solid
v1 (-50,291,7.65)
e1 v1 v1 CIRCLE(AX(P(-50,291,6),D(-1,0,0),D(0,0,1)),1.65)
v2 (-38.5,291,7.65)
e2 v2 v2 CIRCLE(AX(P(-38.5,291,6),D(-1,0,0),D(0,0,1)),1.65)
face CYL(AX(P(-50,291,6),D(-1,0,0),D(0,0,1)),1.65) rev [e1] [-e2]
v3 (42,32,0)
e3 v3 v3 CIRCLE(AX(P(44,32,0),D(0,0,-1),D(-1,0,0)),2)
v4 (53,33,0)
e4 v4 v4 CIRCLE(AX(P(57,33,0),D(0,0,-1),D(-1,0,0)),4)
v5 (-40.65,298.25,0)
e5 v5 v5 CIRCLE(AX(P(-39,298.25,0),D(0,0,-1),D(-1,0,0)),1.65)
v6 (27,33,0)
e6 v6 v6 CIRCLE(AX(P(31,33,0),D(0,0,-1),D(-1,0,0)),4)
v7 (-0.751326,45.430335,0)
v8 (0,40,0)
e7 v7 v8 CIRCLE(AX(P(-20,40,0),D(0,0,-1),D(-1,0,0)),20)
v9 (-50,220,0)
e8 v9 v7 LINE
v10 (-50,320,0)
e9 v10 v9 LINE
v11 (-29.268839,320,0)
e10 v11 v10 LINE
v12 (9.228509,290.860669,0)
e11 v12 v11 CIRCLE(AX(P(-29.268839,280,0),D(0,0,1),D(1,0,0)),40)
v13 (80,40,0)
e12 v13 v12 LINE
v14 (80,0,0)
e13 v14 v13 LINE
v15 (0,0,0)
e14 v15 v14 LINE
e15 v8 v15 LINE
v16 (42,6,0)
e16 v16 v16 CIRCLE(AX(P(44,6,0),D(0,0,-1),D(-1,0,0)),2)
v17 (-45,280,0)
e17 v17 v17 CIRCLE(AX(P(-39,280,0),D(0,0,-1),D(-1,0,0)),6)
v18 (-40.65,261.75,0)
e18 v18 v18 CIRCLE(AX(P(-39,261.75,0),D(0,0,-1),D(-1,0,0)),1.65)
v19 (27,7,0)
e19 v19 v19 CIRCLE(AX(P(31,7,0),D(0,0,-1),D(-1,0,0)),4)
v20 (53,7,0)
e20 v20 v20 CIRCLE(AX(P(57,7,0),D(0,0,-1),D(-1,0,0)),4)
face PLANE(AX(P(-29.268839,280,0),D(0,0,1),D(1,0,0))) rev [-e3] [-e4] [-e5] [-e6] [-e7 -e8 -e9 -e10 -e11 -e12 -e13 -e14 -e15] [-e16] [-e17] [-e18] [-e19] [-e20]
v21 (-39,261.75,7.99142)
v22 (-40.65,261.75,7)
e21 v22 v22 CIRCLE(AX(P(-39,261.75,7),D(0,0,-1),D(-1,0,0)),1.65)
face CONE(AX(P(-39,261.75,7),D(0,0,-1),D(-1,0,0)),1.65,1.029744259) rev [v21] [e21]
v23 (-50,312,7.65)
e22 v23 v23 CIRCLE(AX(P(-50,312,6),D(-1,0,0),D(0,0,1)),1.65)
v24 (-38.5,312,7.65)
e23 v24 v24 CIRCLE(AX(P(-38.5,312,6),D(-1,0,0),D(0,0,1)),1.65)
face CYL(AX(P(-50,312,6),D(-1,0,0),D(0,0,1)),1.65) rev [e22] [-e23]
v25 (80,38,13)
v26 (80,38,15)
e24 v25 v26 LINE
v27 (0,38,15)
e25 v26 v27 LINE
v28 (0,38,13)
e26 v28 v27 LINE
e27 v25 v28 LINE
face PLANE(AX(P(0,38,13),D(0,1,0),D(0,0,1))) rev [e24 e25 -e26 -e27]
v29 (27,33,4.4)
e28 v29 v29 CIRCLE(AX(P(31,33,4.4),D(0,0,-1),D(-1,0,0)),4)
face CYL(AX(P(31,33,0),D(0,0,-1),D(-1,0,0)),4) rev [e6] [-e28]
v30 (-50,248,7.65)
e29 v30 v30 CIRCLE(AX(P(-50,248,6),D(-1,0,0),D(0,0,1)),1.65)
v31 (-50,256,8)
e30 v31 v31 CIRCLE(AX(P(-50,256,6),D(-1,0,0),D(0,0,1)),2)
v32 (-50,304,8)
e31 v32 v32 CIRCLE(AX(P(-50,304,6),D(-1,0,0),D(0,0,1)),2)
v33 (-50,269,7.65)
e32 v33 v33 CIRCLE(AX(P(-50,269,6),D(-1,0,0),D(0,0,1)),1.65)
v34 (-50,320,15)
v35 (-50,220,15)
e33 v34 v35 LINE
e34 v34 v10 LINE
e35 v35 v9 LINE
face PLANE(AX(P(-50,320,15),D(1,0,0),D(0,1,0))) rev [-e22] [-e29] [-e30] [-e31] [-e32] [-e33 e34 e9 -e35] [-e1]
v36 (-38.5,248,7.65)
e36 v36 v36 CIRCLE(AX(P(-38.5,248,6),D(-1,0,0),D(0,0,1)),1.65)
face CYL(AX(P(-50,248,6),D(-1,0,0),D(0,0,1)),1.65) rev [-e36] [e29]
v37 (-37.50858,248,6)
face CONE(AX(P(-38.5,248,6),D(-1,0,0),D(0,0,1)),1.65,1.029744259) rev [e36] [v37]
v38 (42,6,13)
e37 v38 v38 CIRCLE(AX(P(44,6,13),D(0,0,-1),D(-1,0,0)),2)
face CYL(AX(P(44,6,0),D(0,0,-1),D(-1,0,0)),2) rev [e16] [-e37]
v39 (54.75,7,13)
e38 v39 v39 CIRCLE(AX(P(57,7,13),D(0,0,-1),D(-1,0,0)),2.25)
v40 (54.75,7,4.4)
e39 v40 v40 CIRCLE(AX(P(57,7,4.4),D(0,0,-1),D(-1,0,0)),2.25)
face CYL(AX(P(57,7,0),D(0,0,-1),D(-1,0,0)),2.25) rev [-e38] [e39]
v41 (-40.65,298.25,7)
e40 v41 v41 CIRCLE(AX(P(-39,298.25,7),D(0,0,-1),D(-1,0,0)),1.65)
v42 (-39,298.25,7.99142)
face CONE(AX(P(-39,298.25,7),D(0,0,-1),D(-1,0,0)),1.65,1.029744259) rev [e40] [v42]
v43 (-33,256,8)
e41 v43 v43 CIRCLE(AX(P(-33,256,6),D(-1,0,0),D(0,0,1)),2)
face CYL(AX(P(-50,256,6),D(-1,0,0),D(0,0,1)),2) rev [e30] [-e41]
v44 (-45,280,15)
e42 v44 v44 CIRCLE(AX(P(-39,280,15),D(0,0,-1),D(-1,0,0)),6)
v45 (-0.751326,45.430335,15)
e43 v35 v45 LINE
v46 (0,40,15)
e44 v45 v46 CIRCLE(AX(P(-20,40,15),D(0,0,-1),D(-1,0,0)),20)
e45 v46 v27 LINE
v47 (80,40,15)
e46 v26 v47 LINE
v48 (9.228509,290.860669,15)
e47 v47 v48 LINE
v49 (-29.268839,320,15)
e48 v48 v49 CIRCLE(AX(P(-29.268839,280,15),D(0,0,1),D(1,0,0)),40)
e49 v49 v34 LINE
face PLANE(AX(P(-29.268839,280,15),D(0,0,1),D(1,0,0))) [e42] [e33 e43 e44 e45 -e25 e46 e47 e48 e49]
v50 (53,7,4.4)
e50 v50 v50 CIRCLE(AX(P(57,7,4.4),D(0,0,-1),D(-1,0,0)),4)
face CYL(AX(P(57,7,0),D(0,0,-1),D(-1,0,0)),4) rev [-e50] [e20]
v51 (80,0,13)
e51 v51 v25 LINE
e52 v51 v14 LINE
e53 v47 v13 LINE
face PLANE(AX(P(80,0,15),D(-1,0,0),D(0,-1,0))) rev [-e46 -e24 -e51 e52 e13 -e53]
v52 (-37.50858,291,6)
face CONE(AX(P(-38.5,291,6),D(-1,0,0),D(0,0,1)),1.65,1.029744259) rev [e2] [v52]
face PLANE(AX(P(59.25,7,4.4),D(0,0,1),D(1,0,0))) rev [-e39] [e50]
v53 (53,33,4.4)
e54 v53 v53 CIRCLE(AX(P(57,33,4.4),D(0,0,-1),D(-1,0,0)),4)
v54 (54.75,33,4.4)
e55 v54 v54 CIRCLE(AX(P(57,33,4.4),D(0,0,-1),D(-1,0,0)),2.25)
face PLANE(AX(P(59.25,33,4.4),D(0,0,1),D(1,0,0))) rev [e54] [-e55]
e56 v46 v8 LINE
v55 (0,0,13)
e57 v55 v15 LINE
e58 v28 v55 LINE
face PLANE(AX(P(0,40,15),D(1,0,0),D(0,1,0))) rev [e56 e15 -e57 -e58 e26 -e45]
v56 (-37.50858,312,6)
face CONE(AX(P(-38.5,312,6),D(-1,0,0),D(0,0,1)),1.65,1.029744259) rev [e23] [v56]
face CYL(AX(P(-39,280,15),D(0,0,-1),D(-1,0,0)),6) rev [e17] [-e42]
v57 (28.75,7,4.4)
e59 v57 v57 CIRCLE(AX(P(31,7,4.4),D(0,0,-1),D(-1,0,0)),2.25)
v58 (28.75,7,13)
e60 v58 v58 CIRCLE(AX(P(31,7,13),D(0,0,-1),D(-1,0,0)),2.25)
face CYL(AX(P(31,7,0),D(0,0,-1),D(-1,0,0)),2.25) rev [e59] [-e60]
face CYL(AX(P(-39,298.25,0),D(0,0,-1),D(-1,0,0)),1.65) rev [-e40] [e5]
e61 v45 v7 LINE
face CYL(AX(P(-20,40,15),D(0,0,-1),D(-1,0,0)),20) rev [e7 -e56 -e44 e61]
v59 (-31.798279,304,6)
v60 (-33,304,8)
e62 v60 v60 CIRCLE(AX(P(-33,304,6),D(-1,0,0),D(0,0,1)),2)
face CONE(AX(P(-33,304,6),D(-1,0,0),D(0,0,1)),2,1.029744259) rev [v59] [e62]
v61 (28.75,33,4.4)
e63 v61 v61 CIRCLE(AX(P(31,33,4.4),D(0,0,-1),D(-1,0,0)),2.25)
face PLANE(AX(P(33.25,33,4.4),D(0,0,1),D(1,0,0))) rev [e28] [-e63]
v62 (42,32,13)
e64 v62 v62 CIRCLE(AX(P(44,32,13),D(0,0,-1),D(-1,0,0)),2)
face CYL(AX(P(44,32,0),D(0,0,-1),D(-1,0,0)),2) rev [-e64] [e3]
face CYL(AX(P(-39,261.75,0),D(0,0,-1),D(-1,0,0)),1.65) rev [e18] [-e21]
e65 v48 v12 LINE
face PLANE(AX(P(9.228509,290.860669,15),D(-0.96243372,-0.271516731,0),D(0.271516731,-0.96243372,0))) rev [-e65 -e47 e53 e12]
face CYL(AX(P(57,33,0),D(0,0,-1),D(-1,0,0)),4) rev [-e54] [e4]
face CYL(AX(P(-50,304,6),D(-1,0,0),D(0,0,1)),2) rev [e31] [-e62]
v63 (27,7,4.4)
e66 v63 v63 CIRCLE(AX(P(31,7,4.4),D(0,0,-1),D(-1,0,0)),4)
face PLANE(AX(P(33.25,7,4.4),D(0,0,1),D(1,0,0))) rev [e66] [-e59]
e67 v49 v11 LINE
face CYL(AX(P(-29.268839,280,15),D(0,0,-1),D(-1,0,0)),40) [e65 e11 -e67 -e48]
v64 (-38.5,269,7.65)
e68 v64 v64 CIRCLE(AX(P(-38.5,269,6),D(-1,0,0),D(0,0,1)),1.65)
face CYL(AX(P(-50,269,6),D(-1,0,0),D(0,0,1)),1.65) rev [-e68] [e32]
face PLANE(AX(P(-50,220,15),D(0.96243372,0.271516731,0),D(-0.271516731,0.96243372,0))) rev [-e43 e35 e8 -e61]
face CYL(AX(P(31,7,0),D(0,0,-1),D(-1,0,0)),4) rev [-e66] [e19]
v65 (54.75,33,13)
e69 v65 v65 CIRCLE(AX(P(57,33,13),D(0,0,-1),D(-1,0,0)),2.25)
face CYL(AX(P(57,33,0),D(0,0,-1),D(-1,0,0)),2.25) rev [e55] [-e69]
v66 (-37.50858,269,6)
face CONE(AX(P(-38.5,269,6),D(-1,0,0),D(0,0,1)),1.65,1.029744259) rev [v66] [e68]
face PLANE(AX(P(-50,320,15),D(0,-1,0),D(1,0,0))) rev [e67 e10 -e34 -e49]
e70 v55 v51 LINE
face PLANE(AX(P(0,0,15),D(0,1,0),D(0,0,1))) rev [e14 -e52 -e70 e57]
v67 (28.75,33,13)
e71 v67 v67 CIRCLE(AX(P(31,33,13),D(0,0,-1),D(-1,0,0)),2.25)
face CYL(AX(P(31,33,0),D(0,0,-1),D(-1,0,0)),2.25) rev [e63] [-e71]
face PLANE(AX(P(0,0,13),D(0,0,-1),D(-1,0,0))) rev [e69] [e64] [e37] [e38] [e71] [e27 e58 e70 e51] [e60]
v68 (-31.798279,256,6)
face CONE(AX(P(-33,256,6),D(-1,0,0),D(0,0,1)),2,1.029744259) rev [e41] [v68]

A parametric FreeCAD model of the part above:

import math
import FreeCAD as App
import Part
import Sketcher

V = App.Vector

doc = App.newDocument("Part")
body = doc.addObject("PartDesign::Body", "Body")

sketch1 = body.newObject("Sketcher::SketchObject", "Sketch")
sketch1.AttachmentSupport = (doc.getObject("XY_Plane"), [""])
sketch1.MapMode = "FlatFace"
sketch1.addGeometry([
    Part.LineSegment(V(80, 0, 0), V(80, 40, 0)),
    Part.LineSegment(V(80, 40, 0), V(9.228509, 290.860669, 0)),
    Part.ArcOfCircle(Part.Circle(V(-29.268839, 280, 0), V(0, 0, 1), 40), math.radians(15.754541), math.radians(90)),
    Part.LineSegment(V(-29.268839, 320, 0), V(-50, 320, 0)),
    Part.LineSegment(V(-50, 320, 0), V(-50, 220, 0)),
    Part.LineSegment(V(-50, 220, 0), V(-0.751326, 45.430335, 0)),
    Part.ArcOfCircle(Part.Circle(V(-20, 40, 0), V(0, 0, 1), 20), math.radians(0), math.radians(15.754541)),
    Part.LineSegment(V(0, 40, 0), V(0, 0, 0)),
    Part.LineSegment(V(0, 0, 0), V(80, 0, 0)),
], False)
sketch1.addConstraint([
    Sketcher.Constraint("Coincident", 0, 2, 1, 1),
    Sketcher.Constraint("Tangent", 1, 2, 2, 1),
    Sketcher.Constraint("Tangent", 2, 2, 3, 1),
    Sketcher.Constraint("Coincident", 3, 2, 4, 1),
    Sketcher.Constraint("Coincident", 4, 2, 5, 1),
    Sketcher.Constraint("Tangent", 5, 2, 6, 2),
    Sketcher.Constraint("Tangent", 6, 1, 7, 1),
    Sketcher.Constraint("Coincident", 7, 2, 8, 1),
    Sketcher.Constraint("Coincident", 8, 2, 0, 1),
    Sketcher.Constraint("Vertical", 0),
    Sketcher.Constraint("Horizontal", 3),
    Sketcher.Constraint("Vertical", 4),
    Sketcher.Constraint("Vertical", 7),
    Sketcher.Constraint("Horizontal", 8),
    Sketcher.Constraint("Coincident", 7, 2, -1, 1),
    Sketcher.Constraint("Parallel", 1, 5),
    Sketcher.Constraint("Horizontal", 6, 3, 0, 2),
    Sketcher.Constraint("Radius", 2, 40.0),
    Sketcher.Constraint("Radius", 6, 20.0),
    Sketcher.Constraint("DistanceX", 8, 1, 8, 2, 80.0),
    Sketcher.Constraint("DistanceY", 0, 1, 0, 2, 40.0),
    Sketcher.Constraint("DistanceY", 4, 2, 4, 1, 100.0),
    Sketcher.Constraint("DistanceY", -1, 1, 2, 3, 280.0),
    Sketcher.Constraint("DistanceX", 3, 2, -1, 1, 50.0),
])
pad1 = body.newObject("PartDesign::Pad", "Pad")
pad1.Profile = sketch1
pad1.Length = 15

sketch2 = body.newObject("Sketcher::SketchObject", "Sketch001")
sketch2.AttachmentSupport = (doc.getObject("XY_Plane"), [""])
sketch2.MapMode = "FlatFace"
sketch2.addGeometry(Part.Circle(V(-39, 280, 0), V(0, 0, 1), 6), False)
sketch2.addConstraint([
    Sketcher.Constraint("Diameter", 0, 12.0),
    Sketcher.Constraint("DistanceX", 0, 3, -1, 1, 39.0),
    Sketcher.Constraint("DistanceY", -1, 1, 0, 3, 280.0),
])
pocket1 = body.newObject("PartDesign::Pocket", "Pocket")
pocket1.Profile = sketch2
pocket1.Type = "ThroughAll"
pocket1.Reversed = True

sketch3 = body.newObject("Sketcher::SketchObject", "Sketch002")
sketch3.AttachmentSupport = (doc.getObject("XY_Plane"), [""])
sketch3.MapMode = "FlatFace"
sketch3.addGeometry([
    Part.Circle(V(-39, 261.75, 0), V(0, 0, 1), 1.65),
    Part.Circle(V(-39, 298.25, 0), V(0, 0, 1), 1.65),
], False)
sketch3.addConstraint([
    Sketcher.Constraint("Equal", 0, 1),
    Sketcher.Constraint("Vertical", 0, 3, 1, 3),
    Sketcher.Constraint("Diameter", 0, 3.3),
    Sketcher.Constraint("DistanceX", 0, 3, -1, 1, 39.0),
    Sketcher.Constraint("DistanceY", 0, 3, 1, 3, 36.5),
    Sketcher.Constraint("DistanceY", -1, 1, 0, 3, 261.75),
])
doc.recompute()
hole = body.newObject("PartDesign::Hole", "Hole")
hole.Profile = sketch3
hole.ThreadType = "None"
hole.Diameter = 3.3
hole.DepthType = "Dimension"
hole.Depth = 7
hole.DrillPoint = "Angled"
hole.DrillPointAngle = 118
hole.Reversed = True

sketch4 = body.newObject("Sketcher::SketchObject", "Sketch003")
sketch4.AttachmentSupport = (doc.getObject("XY_Plane"), [""])
sketch4.MapMode = "FlatFace"
sketch4.AttachmentOffset = App.Placement(V(0, 0, 15), App.Rotation())
sketch4.addGeometry([
    Part.LineSegment(V(0, 38, 0), V(0, 0, 0)),
    Part.LineSegment(V(0, 0, 0), V(80, 0, 0)),
    Part.LineSegment(V(80, 0, 0), V(80, 38, 0)),
    Part.LineSegment(V(80, 38, 0), V(0, 38, 0)),
], False)
sketch4.addConstraint([
    Sketcher.Constraint("Coincident", 0, 2, 1, 1),
    Sketcher.Constraint("Coincident", 1, 2, 2, 1),
    Sketcher.Constraint("Coincident", 2, 2, 3, 1),
    Sketcher.Constraint("Coincident", 3, 2, 0, 1),
    Sketcher.Constraint("Vertical", 0),
    Sketcher.Constraint("Horizontal", 1),
    Sketcher.Constraint("Vertical", 2),
    Sketcher.Constraint("Horizontal", 3),
    Sketcher.Constraint("Coincident", 0, 2, -1, 1),
    Sketcher.Constraint("DistanceX", 1, 1, 1, 2, 80.0),
    Sketcher.Constraint("DistanceY", 0, 2, 0, 1, 38.0),
])
pocket2 = body.newObject("PartDesign::Pocket", "Pocket001")
pocket2.Profile = sketch4
pocket2.Length = 2

sketch5 = body.newObject("Sketcher::SketchObject", "Sketch004")
sketch5.AttachmentSupport = (doc.getObject("YZ_Plane"), [""])
sketch5.MapMode = "FlatFace"
sketch5.AttachmentOffset = App.Placement(V(0, 0, -50), App.Rotation())
sketch5.addGeometry([
    Part.Circle(V(304, 6, 0), V(0, 0, 1), 2),
    Part.Circle(V(256, 6, 0), V(0, 0, 1), 2),
], False)
sketch5.addConstraint([
    Sketcher.Constraint("Equal", 0, 1),
    Sketcher.Constraint("Horizontal", 0, 3, 1, 3),
    Sketcher.Constraint("Diameter", 0, 4.0),
    Sketcher.Constraint("DistanceX", -1, 1, 0, 3, 304.0),
    Sketcher.Constraint("DistanceY", -1, 1, 0, 3, 6.0),
    Sketcher.Constraint("DistanceX", -1, 1, 1, 3, 256.0),
])
doc.recompute()
hole2 = body.newObject("PartDesign::Hole", "Hole001")
hole2.Profile = sketch5
hole2.ThreadType = "None"
hole2.Diameter = 4
hole2.DepthType = "Dimension"
hole2.Depth = 17
hole2.DrillPoint = "Angled"
hole2.DrillPointAngle = 118
hole2.Reversed = True

sketch6 = body.newObject("Sketcher::SketchObject", "Sketch005")
sketch6.AttachmentSupport = (doc.getObject("YZ_Plane"), [""])
sketch6.MapMode = "FlatFace"
sketch6.AttachmentOffset = App.Placement(V(0, 0, -50), App.Rotation())
sketch6.addGeometry([
    Part.Circle(V(312, 6, 0), V(0, 0, 1), 1.65),
    Part.Circle(V(248, 6, 0), V(0, 0, 1), 1.65),
    Part.Circle(V(291, 6, 0), V(0, 0, 1), 1.65),
    Part.Circle(V(269, 6, 0), V(0, 0, 1), 1.65),
], False)
sketch6.addConstraint([
    Sketcher.Constraint("Equal", 0, 1),
    Sketcher.Constraint("Equal", 1, 2),
    Sketcher.Constraint("Equal", 2, 3),
    Sketcher.Constraint("Horizontal", 0, 3, 1, 3),
    Sketcher.Constraint("Horizontal", 1, 3, 2, 3),
    Sketcher.Constraint("Horizontal", 2, 3, 3, 3),
    Sketcher.Constraint("Diameter", 0, 3.3),
    Sketcher.Constraint("DistanceX", -1, 1, 0, 3, 312.0),
    Sketcher.Constraint("DistanceY", -1, 1, 0, 3, 6.0),
    Sketcher.Constraint("DistanceX", -1, 1, 1, 3, 248.0),
    Sketcher.Constraint("DistanceX", -1, 1, 2, 3, 291.0),
    Sketcher.Constraint("DistanceX", -1, 1, 3, 3, 269.0),
])
doc.recompute()
hole3 = body.newObject("PartDesign::Hole", "Hole002")
hole3.Profile = sketch6
hole3.ThreadType = "None"
hole3.Diameter = 3.3
hole3.DepthType = "Dimension"
hole3.Depth = 11.5
hole3.DrillPoint = "Angled"
hole3.DrillPointAngle = 118
hole3.Reversed = True

sketch7 = body.newObject("Sketcher::SketchObject", "Sketch006")
sketch7.AttachmentSupport = (doc.getObject("XY_Plane"), [""])
sketch7.MapMode = "FlatFace"
sketch7.addGeometry([
    Part.Circle(V(57, 7, 0), V(0, 0, 1), 2.25),
    Part.Circle(V(57, 33, 0), V(0, 0, 1), 2.25),
    Part.Circle(V(31, 33, 0), V(0, 0, 1), 2.25),
    Part.Circle(V(31, 7, 0), V(0, 0, 1), 2.25),
], False)
sketch7.addConstraint([
    Sketcher.Constraint("Equal", 0, 1),
    Sketcher.Constraint("Equal", 1, 2),
    Sketcher.Constraint("Equal", 2, 3),
    Sketcher.Constraint("Horizontal", 1, 3, 2, 3),
    Sketcher.Constraint("Horizontal", 0, 3, 3, 3),
    Sketcher.Constraint("Vertical", 0, 3, 1, 3),
    Sketcher.Constraint("Vertical", 2, 3, 3, 3),
    Sketcher.Constraint("Diameter", 0, 4.5),
    Sketcher.Constraint("DistanceX", -1, 1, 0, 3, 57.0),
    Sketcher.Constraint("DistanceY", -1, 1, 0, 3, 7.0),
    Sketcher.Constraint("DistanceY", -1, 1, 1, 3, 33.0),
    Sketcher.Constraint("DistanceX", -1, 1, 2, 3, 31.0),
])
doc.recompute()
hole4 = body.newObject("PartDesign::Hole", "Hole003")
hole4.Profile = sketch7
hole4.ThreadType = "None"
hole4.Diameter = 4.5
hole4.DepthType = "ThroughAll"
hole4.HoleCutType = "Counterbore"
hole4.HoleCutDiameter = 8
hole4.HoleCutDepth = 4.4
hole4.Reversed = True

sketch8 = body.newObject("Sketcher::SketchObject", "Sketch007")
sketch8.AttachmentSupport = (doc.getObject("XY_Plane"), [""])
sketch8.MapMode = "FlatFace"
sketch8.addGeometry([
    Part.Circle(V(44, 32, 0), V(0, 0, 1), 2),
    Part.Circle(V(44, 6, 0), V(0, 0, 1), 2),
], False)
sketch8.addConstraint([
    Sketcher.Constraint("Equal", 0, 1),
    Sketcher.Constraint("Vertical", 0, 3, 1, 3),
    Sketcher.Constraint("Diameter", 0, 4.0),
    Sketcher.Constraint("DistanceX", -1, 1, 0, 3, 44.0),
    Sketcher.Constraint("DistanceY", -1, 1, 0, 3, 32.0),
    Sketcher.Constraint("DistanceY", -1, 1, 1, 3, 6.0),
])
doc.recompute()
hole5 = body.newObject("PartDesign::Hole", "Hole004")
hole5.Profile = sketch8
hole5.ThreadType = "None"
hole5.Diameter = 4
hole5.DepthType = "ThroughAll"
hole5.Reversed = True

doc.recompute()
